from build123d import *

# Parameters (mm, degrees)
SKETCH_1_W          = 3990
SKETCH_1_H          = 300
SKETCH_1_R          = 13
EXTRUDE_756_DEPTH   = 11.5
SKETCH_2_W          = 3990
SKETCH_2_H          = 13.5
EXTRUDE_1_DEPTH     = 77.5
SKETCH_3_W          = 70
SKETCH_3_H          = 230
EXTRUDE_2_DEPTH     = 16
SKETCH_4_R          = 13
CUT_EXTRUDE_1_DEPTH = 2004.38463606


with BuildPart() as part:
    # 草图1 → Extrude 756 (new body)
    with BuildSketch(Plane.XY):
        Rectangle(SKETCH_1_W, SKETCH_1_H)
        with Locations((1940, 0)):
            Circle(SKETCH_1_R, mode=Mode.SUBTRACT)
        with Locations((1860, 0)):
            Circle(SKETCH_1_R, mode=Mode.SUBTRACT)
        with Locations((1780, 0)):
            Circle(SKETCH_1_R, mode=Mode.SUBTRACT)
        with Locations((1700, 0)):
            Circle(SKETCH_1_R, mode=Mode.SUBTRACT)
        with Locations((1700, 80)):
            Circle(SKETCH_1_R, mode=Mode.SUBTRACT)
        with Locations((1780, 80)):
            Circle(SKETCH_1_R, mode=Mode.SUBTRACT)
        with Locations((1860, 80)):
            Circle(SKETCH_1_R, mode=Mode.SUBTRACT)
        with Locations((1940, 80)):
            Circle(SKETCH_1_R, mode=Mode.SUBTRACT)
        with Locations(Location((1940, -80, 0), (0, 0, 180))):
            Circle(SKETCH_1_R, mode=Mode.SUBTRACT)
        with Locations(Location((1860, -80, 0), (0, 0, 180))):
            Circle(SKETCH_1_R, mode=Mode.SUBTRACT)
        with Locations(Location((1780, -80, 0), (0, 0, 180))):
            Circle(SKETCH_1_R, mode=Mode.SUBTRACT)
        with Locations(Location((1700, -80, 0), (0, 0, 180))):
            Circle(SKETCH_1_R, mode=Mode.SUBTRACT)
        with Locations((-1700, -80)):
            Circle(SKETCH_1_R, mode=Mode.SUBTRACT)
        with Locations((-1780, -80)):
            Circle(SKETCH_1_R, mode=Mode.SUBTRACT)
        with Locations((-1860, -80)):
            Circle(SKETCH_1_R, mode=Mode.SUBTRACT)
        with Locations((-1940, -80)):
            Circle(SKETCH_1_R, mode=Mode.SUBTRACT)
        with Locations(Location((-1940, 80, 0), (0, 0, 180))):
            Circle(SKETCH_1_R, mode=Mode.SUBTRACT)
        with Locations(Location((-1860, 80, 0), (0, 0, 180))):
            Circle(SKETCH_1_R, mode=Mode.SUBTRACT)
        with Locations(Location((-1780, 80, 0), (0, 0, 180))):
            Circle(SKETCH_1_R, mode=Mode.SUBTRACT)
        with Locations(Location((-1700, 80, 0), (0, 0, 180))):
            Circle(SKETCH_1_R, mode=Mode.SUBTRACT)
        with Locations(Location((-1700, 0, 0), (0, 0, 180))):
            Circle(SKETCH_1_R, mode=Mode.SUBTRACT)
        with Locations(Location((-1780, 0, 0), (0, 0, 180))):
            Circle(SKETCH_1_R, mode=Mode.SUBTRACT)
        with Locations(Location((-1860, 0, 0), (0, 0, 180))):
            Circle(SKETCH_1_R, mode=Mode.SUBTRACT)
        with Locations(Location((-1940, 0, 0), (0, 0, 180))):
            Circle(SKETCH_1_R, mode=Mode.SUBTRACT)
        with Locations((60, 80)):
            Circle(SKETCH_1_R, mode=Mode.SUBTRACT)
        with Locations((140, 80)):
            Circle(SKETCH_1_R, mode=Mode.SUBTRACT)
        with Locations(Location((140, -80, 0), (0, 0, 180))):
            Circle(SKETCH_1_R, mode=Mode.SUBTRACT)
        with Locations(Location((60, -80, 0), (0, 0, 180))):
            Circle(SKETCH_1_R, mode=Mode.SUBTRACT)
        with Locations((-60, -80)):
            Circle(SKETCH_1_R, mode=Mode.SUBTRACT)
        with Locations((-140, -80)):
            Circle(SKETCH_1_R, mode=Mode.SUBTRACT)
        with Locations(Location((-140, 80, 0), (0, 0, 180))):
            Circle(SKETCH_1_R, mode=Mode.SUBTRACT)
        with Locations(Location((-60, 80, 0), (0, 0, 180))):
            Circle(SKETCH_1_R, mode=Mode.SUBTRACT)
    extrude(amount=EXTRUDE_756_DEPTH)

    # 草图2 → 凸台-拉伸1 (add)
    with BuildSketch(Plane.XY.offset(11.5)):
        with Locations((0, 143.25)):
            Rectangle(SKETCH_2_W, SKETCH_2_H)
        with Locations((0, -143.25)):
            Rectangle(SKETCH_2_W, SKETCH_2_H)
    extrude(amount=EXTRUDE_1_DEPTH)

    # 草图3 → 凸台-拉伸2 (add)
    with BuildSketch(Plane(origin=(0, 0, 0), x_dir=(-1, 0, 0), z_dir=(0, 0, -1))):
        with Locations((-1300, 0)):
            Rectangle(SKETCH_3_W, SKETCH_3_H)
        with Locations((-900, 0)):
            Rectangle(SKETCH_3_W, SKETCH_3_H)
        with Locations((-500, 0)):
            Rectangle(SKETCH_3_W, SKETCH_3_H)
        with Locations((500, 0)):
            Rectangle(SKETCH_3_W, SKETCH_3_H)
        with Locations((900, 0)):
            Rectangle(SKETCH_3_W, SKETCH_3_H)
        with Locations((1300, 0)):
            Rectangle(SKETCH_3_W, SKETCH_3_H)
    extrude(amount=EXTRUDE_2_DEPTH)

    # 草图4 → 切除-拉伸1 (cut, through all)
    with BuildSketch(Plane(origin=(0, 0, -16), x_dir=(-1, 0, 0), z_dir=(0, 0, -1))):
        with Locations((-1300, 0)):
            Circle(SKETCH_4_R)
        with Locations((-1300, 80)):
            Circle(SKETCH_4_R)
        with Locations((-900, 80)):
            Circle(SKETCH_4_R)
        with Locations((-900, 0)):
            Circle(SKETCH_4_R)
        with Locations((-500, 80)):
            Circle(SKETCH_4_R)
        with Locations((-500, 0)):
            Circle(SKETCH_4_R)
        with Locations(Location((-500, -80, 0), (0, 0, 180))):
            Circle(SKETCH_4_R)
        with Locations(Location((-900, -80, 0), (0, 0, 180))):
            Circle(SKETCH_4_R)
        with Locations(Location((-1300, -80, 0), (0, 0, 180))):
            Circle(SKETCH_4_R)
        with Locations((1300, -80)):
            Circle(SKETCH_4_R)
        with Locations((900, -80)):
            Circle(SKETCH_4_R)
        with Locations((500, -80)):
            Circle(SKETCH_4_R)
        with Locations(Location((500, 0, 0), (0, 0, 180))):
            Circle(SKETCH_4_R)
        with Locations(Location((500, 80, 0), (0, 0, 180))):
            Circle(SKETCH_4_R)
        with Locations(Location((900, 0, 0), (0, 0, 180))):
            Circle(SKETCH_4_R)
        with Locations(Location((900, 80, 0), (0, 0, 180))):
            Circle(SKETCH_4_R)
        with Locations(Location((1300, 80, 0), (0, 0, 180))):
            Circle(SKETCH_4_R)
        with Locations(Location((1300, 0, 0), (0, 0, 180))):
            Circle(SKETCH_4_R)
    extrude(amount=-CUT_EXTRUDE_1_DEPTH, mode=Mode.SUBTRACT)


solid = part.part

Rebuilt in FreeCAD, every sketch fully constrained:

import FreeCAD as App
import Part
import Sketcher


def add_polygon(sketch, points):
    """Adds a closed chain of lines whose ends are joined by coincident constraints."""
    first, n = sketch.GeometryCount, len(points)
    for a, b in zip(points, points[1:] + points[:1]):
        sketch.addGeometry(Part.LineSegment(App.Vector(*a, 0), App.Vector(*b, 0)), False)
    for i in range(n):
        sketch.addConstraint(Sketcher.Constraint("Coincident", first + i, 2, first + (i + 1) % n, 1))

doc = App.newDocument("Part")
body = doc.addObject("PartDesign::Body", "Body")

sketch1 = doc.addObject("Sketcher::SketchObject", "Sketch")
body.addObject(sketch1)
sketch1.AttachmentSupport = (doc.XY_Plane, [""])
sketch1.MapMode = "FlatFace"
add_polygon(sketch1, [(-1995, 150), (-1995, -150), (1995, -150), (1995, 150)])
sketch1.addGeometry(Part.Circle(App.Vector(-1940, -80, 0), App.Vector(0, 0, 1), 13), False)
sketch1.addGeometry(Part.Circle(App.Vector(-1860, -80, 0), App.Vector(0, 0, 1), 13), False)
sketch1.addGeometry(Part.Circle(App.Vector(-1780, -80, 0), App.Vector(0, 0, 1), 13), False)
sketch1.addGeometry(Part.Circle(App.Vector(-1700, -80, 0), App.Vector(0, 0, 1), 13), False)
sketch1.addGeometry(Part.Circle(App.Vector(-140, -80, 0), App.Vector(0, 0, 1), 13), False)
sketch1.addGeometry(Part.Circle(App.Vector(-60, -80, 0), App.Vector(0, 0, 1), 13), False)
sketch1.addGeometry(Part.Circle(App.Vector(60, -80, 0), App.Vector(0, 0, 1), 13), False)
sketch1.addGeometry(Part.Circle(App.Vector(140, -80, 0), App.Vector(0, 0, 1), 13), False)
sketch1.addGeometry(Part.Circle(App.Vector(1700, -80, 0), App.Vector(0, 0, 1), 13), False)
sketch1.addGeometry(Part.Circle(App.Vector(1780, -80, 0), App.Vector(0, 0, 1), 13), False)
sketch1.addGeometry(Part.Circle(App.Vector(1860, -80, 0), App.Vector(0, 0, 1), 13), False)
sketch1.addGeometry(Part.Circle(App.Vector(1940, -80, 0), App.Vector(0, 0, 1), 13), False)
sketch1.addGeometry(Part.Circle(App.Vector(-1940, 0, 0), App.Vector(0, 0, 1), 13), False)
sketch1.addGeometry(Part.Circle(App.Vector(-1860, 0, 0), App.Vector(0, 0, 1), 13), False)
sketch1.addGeometry(Part.Circle(App.Vector(-1780, 0, 0), App.Vector(0, 0, 1), 13), False)
sketch1.addGeometry(Part.Circle(App.Vector(-1700, 0, 0), App.Vector(0, 0, 1), 13), False)
sketch1.addGeometry(Part.Circle(App.Vector(-1940, 80, 0), App.Vector(0, 0, 1), 13), False)
sketch1.addGeometry(Part.Circle(App.Vector(-1860, 80, 0), App.Vector(0, 0, 1), 13), False)
sketch1.addGeometry(Part.Circle(App.Vector(-1780, 80, 0), App.Vector(0, 0, 1), 13), False)
sketch1.addGeometry(Part.Circle(App.Vector(-1700, 80, 0), App.Vector(0, 0, 1), 13), False)
sketch1.addGeometry(Part.Circle(App.Vector(-140, 80, 0), App.Vector(0, 0, 1), 13), False)
sketch1.addGeometry(Part.Circle(App.Vector(-60, 80, 0), App.Vector(0, 0, 1), 13), False)
sketch1.addGeometry(Part.Circle(App.Vector(1700, 0, 0), App.Vector(0, 0, 1), 13), False)
sketch1.addGeometry(Part.Circle(App.Vector(1780, 0, 0), App.Vector(0, 0, 1), 13), False)
sketch1.addGeometry(Part.Circle(App.Vector(1860, 0, 0), App.Vector(0, 0, 1), 13), False)
sketch1.addGeometry(Part.Circle(App.Vector(1940, 0, 0), App.Vector(0, 0, 1), 13), False)
sketch1.addGeometry(Part.Circle(App.Vector(60, 80, 0), App.Vector(0, 0, 1), 13), False)
sketch1.addGeometry(Part.Circle(App.Vector(140, 80, 0), App.Vector(0, 0, 1), 13), False)
sketch1.addGeometry(Part.Circle(App.Vector(1700, 80, 0), App.Vector(0, 0, 1), 13), False)
sketch1.addGeometry(Part.Circle(App.Vector(1780, 80, 0), App.Vector(0, 0, 1), 13), False)
sketch1.addGeometry(Part.Circle(App.Vector(1860, 80, 0), App.Vector(0, 0, 1), 13), False)
sketch1.addGeometry(Part.Circle(App.Vector(1940, 80, 0), App.Vector(0, 0, 1), 13), False)
sketch1.addConstraint([
    Sketcher.Constraint("Vertical", 0),
    Sketcher.Constraint("Horizontal", 1),
    Sketcher.Constraint("Vertical", 2),
    Sketcher.Constraint("Horizontal", 3),
    Sketcher.Constraint("Equal", 4, 5),
    Sketcher.Constraint("Equal", 5, 6),
    Sketcher.Constraint("Equal", 6, 7),
    Sketcher.Constraint("Equal", 7, 8),
    Sketcher.Constraint("Equal", 8, 9),
    Sketcher.Constraint("Equal", 9, 10),
    Sketcher.Constraint("Equal", 10, 11),
    Sketcher.Constraint("Equal", 11, 12),
    Sketcher.Constraint("Equal", 12, 13),
    Sketcher.Constraint("Equal", 13, 14),
    Sketcher.Constraint("Equal", 14, 15),
    Sketcher.Constraint("Equal", 15, 16),
    Sketcher.Constraint("Equal", 16, 17),
    Sketcher.Constraint("Equal", 17, 18),
    Sketcher.Constraint("Equal", 18, 19),
    Sketcher.Constraint("Equal", 19, 20),
    Sketcher.Constraint("Equal", 20, 21),
    Sketcher.Constraint("Equal", 21, 22),
    Sketcher.Constraint("Equal", 22, 23),
    Sketcher.Constraint("Equal", 23, 24),
    Sketcher.Constraint("Equal", 24, 25),
    Sketcher.Constraint("Equal", 25, 26),
    Sketcher.Constraint("Equal", 26, 27),
    Sketcher.Constraint("Equal", 27, 28),
    Sketcher.Constraint("Equal", 28, 29),
    Sketcher.Constraint("Equal", 29, 30),
    Sketcher.Constraint("Equal", 30, 31),
    Sketcher.Constraint("Equal", 31, 32),
    Sketcher.Constraint("Equal", 32, 33),
    Sketcher.Constraint("Equal", 33, 34),
    Sketcher.Constraint("Equal", 34, 35),
    Sketcher.Constraint("Symmetric", 15, 3, 20, 3, -1, 1),
    Sketcher.Constraint("Symmetric", 14, 3, 21, 3, -1, 1),
    Sketcher.Constraint("Symmetric", 13, 3, 22, 3, -1, 1),
    Sketcher.Constraint("Symmetric", 12, 3, 23, 3, -1, 1),
    Sketcher.Constraint("Symmetric", 11, 3, 24, 3, -1, 1),
    Sketcher.Constraint("Symmetric", 10, 3, 25, 3, -1, 1),
    Sketcher.Constraint("Symmetric", 19, 3, 26, 3, -1, 1),
    Sketcher.Constraint("Symmetric", 18, 3, 27, 3, -1, 1),
    Sketcher.Constraint("Symmetric", 17, 3, 28, 3, -1, 1),
    Sketcher.Constraint("Symmetric", 16, 3, 29, 3, -1, 1),
    Sketcher.Constraint("Symmetric", 9, 3, 30, 3, -1, 1),
    Sketcher.Constraint("Symmetric", 8, 3, 31, 3, -1, 1),
    Sketcher.Constraint("Symmetric", 7, 3, 32, 3, -1, 1),
    Sketcher.Constraint("Symmetric", 6, 3, 33, 3, -1, 1),
    Sketcher.Constraint("Symmetric", 5, 3, 34, 3, -1, 1),
    Sketcher.Constraint("Symmetric", 4, 3, 35, 3, -1, 1),
    Sketcher.Constraint("Symmetric", 0, 2, 2, 2, -1, 1),
    Sketcher.Constraint("Symmetric", 9, 3, 10, 3, -2),
    Sketcher.Constraint("Symmetric", 8, 3, 11, 3, -2),
    Sketcher.Constraint("Symmetric", 7, 3, 12, 3, -2),
    Sketcher.Constraint("Symmetric", 6, 3, 13, 3, -2),
    Sketcher.Constraint("Symmetric", 5, 3, 14, 3, -2),
    Sketcher.Constraint("Symmetric", 4, 3, 15, 3, -2),
    Sketcher.Constraint("PointOnObject", 16, 3, -1),
    Sketcher.Constraint("PointOnObject", 17, 3, -1),
    Sketcher.Constraint("PointOnObject", 18, 3, -1),
    Sketcher.Constraint("PointOnObject", 19, 3, -1),
    Sketcher.Constraint("Horizontal", 4, 3, 5, 3),
    Sketcher.Constraint("Horizontal", 5, 3, 6, 3),
    Sketcher.Constraint("Horizontal", 6, 3, 7, 3),
    Sketcher.Constraint("Horizontal", 7, 3, 8, 3),
    Sketcher.Constraint("Horizontal", 8, 3, 9, 3),
    Sketcher.Constraint("Vertical", 4, 3, 16, 3),
    Sketcher.Constraint("Vertical", 5, 3, 17, 3),
    Sketcher.Constraint("Vertical", 6, 3, 18, 3),
    Sketcher.Constraint("Vertical", 7, 3, 19, 3),
    Sketcher.Constraint("Diameter", 4, 26.0),
    Sketcher.Constraint("DistanceX", 1, 1, 1, 2, 3990.0),
    Sketcher.Constraint("DistanceY", 0, 2, 0, 1, 300.0),
    Sketcher.Constraint("DistanceX", 4, 3, -1, 1, 1940.0),
    Sketcher.Constraint("DistanceY", 4, 3, -1, 1, 80.0),
    Sketcher.Constraint("DistanceX", 5, 3, -1, 1, 1860.0),
    Sketcher.Constraint("DistanceX", 6, 3, -1, 1, 1780.0),
    Sketcher.Constraint("DistanceX", 7, 3, -1, 1, 1700.0),
    Sketcher.Constraint("DistanceX", 8, 3, -1, 1, 140.0),
    Sketcher.Constraint("DistanceX", 9, 3, -1, 1, 60.0),
])
pad1 = doc.addObject("PartDesign::Pad", "Pad")
body.addObject(pad1)
pad1.Profile = sketch1
pad1.Length = 11.5

sketch2 = doc.addObject("Sketcher::SketchObject", "Sketch001")
body.addObject(sketch2)
sketch2.AttachmentSupport = (doc.XY_Plane, [""])
sketch2.MapMode = "FlatFace"
sketch2.AttachmentOffset = App.Placement(App.Vector(0, 0, 11.5), App.Rotation())
add_polygon(sketch2, [(-1995, 150), (-1995, 136), (1995, 136), (1995, 150)])
add_polygon(sketch2, [(-1995, -136), (-1995, -150), (1995, -150), (1995, -136)])
sketch2.addConstraint([
    Sketcher.Constraint("Vertical", 0),
    Sketcher.Constraint("Horizontal", 1),
    Sketcher.Constraint("Vertical", 2),
    Sketcher.Constraint("Horizontal", 3),
    Sketcher.Constraint("Vertical", 4),
    Sketcher.Constraint("Horizontal", 5),
    Sketcher.Constraint("Vertical", 6),
    Sketcher.Constraint("Horizontal", 7),
    Sketcher.Constraint("Symmetric", 2, 2, 4, 2, -1, 1),
    Sketcher.Constraint("Symmetric", 0, 2, 6, 2, -1, 1),
    Sketcher.Constraint("Vertical", 3, 2, 4, 2),
    Sketcher.Constraint("DistanceX", 1, 1, 1, 2, 3990.0),
    Sketcher.Constraint("DistanceY", 0, 2, 0, 1, 13.5),
    Sketcher.Constraint("DistanceY", -1, 1, 2, 2, 150.0),
])
pad2 = doc.addObject("PartDesign::Pad", "Pad001")
body.addObject(pad2)
pad2.Profile = sketch2
pad2.Length = 77.5

sketch3 = doc.addObject("Sketcher::SketchObject", "Sketch002")
body.addObject(sketch3)
sketch3.AttachmentSupport = (doc.XY_Plane, [""])
sketch3.MapMode = "FlatFace"
add_polygon(sketch3, [(1335, 115), (1335, -115), (1265, -115), (1265, 115)])
add_polygon(sketch3, [(935, 115), (935, -115), (865, -115), (865, 115)])
add_polygon(sketch3, [(535, 115), (535, -115), (465, -115), (465, 115)])
add_polygon(sketch3, [(-465, 115), (-465, -115), (-535, -115), (-535, 115)])
add_polygon(sketch3, [(-865, 115), (-865, -115), (-935, -115), (-935, 115)])
add_polygon(sketch3, [(-1265, 115), (-1265, -115), (-1335, -115), (-1335, 115)])
sketch3.addConstraint([
    Sketcher.Constraint("Vertical", 0),
    Sketcher.Constraint("Horizontal", 1),
    Sketcher.Constraint("Vertical", 2),
    Sketcher.Constraint("Horizontal", 3),
    Sketcher.Constraint("Vertical", 4),
    Sketcher.Constraint("Horizontal", 5),
    Sketcher.Constraint("Vertical", 6),
    Sketcher.Constraint("Horizontal", 7),
    Sketcher.Constraint("Vertical", 8),
    Sketcher.Constraint("Horizontal", 9),
    Sketcher.Constraint("Vertical", 10),
    Sketcher.Constraint("Horizontal", 11),
    Sketcher.Constraint("Vertical", 12),
    Sketcher.Constraint("Horizontal", 13),
    Sketcher.Constraint("Vertical", 14),
    Sketcher.Constraint("Horizontal", 15),
    Sketcher.Constraint("Vertical", 16),
    Sketcher.Constraint("Horizontal", 17),
    Sketcher.Constraint("Vertical", 18),
    Sketcher.Constraint("Horizontal", 19),
    Sketcher.Constraint("Vertical", 20),
    Sketcher.Constraint("Horizontal", 21),
    Sketcher.Constraint("Vertical", 22),
    Sketcher.Constraint("Horizontal", 23),
    Sketcher.Constraint("Symmetric", 10, 2, 12, 2, -1, 1),
    Sketcher.Constraint("Symmetric", 8, 2, 14, 2, -1, 1),
    Sketcher.Constraint("Symmetric", 6, 2, 16, 2, -1, 1),
    Sketcher.Constraint("Symmetric", 4, 2, 18, 2, -1, 1),
    Sketcher.Constraint("Symmetric", 2, 2, 20, 2, -1, 1),
    Sketcher.Constraint("Symmetric", 0, 2, 22, 2, -1, 1),
    Sketcher.Constraint("Horizontal", 1, 2, 4, 2),
    Sketcher.Constraint("Horizontal", 3, 2, 6, 2),
    Sketcher.Constraint("Horizontal", 5, 2, 8, 2),
    Sketcher.Constraint("Horizontal", 7, 2, 10, 2),
    Sketcher.Constraint("Horizontal", 9, 2, 12, 2),
    Sketcher.Constraint("Equal", 3, 5),
    Sketcher.Constraint("Equal", 7, 9),
    Sketcher.Constraint("DistanceX", 1, 2, 1, 1, 70.0),
    Sketcher.Constraint("DistanceY", 0, 2, 0, 1, 230.0),
    Sketcher.Constraint("DistanceX", -1, 1, 0, 2, 1335.0),
    Sketcher.Constraint("DistanceX", -1, 1, 4, 2, 935.0),
    Sketcher.Constraint("DistanceX", -1, 1, 8, 2, 535.0),
])
pad3 = doc.addObject("PartDesign::Pad", "Pad002")
body.addObject(pad3)
pad3.Profile = sketch3
pad3.Length = 16
pad3.Reversed = True

sketch4 = doc.addObject("Sketcher::SketchObject", "Sketch003")
body.addObject(sketch4)
sketch4.AttachmentSupport = (doc.XY_Plane, [""])
sketch4.MapMode = "FlatFace"
sketch4.AttachmentOffset = App.Placement(App.Vector(0, 0, -16), App.Rotation())
sketch4.addGeometry([
    Part.Circle(App.Vector(1300, 0, 0), App.Vector(0, 0, 1), 13),
    Part.Circle(App.Vector(1300, 80, 0), App.Vector(0, 0, 1), 13),
    Part.Circle(App.Vector(900, 80, 0), App.Vector(0, 0, 1), 13),
    Part.Circle(App.Vector(900, 0, 0), App.Vector(0, 0, 1), 13),
    Part.Circle(App.Vector(500, 80, 0), App.Vector(0, 0, 1), 13),
    Part.Circle(App.Vector(500, 0, 0), App.Vector(0, 0, 1), 13),
    Part.Circle(App.Vector(500, -80, 0), App.Vector(0, 0, 1), 13),
    Part.Circle(App.Vector(900, -80, 0), App.Vector(0, 0, 1), 13),
    Part.Circle(App.Vector(1300, -80, 0), App.Vector(0, 0, 1), 13),
    Part.Circle(App.Vector(-1300, -80, 0), App.Vector(0, 0, 1), 13),
    Part.Circle(App.Vector(-900, -80, 0), App.Vector(0, 0, 1), 13),
    Part.Circle(App.Vector(-500, -80, 0), App.Vector(0, 0, 1), 13),
    Part.Circle(App.Vector(-500, 0, 0), App.Vector(0, 0, 1), 13),
    Part.Circle(App.Vector(-500, 80, 0), App.Vector(0, 0, 1), 13),
    Part.Circle(App.Vector(-900, 0, 0), App.Vector(0, 0, 1), 13),
    Part.Circle(App.Vector(-900, 80, 0), App.Vector(0, 0, 1), 13),
    Part.Circle(App.Vector(-1300, 80, 0), App.Vector(0, 0, 1), 13),
    Part.Circle(App.Vector(-1300, 0, 0), App.Vector(0, 0, 1), 13),
], False)
sketch4.addConstraint([
    Sketcher.Constraint("Equal", 0, 1),
    Sketcher.Constraint("Equal", 1, 2),
    Sketcher.Constraint("Equal", 2, 3),
    Sketcher.Constraint("Equal", 3, 4),
    Sketcher.Constraint("Equal", 4, 5),
    Sketcher.Constraint("Equal", 5, 6),
    Sketcher.Constraint("Equal", 6, 7),
    Sketcher.Constraint("Equal", 7, 8),
    Sketcher.Constraint("Equal", 8, 9),
    Sketcher.Constraint("Equal", 9, 10),
    Sketcher.Constraint("Equal", 10, 11),
    Sketcher.Constraint("Equal", 11, 12),
    Sketcher.Constraint("Equal", 12, 13),
    Sketcher.Constraint("Equal", 13, 14),
    Sketcher.Constraint("Equal", 14, 15),
    Sketcher.Constraint("Equal", 15, 16),
    Sketcher.Constraint("Equal", 16, 17),
    Sketcher.Constraint("Symmetric", 1, 3, 9, 3, -1, 1),
    Sketcher.Constraint("Symmetric", 2, 3, 10, 3, -1, 1),
    Sketcher.Constraint("Symmetric", 4, 3, 11, 3, -1, 1),
    Sketcher.Constraint("Symmetric", 5, 3, 12, 3, -1, 1),
    Sketcher.Constraint("Symmetric", 6, 3, 13, 3, -1, 1),
    Sketcher.Constraint("Symmetric", 3, 3, 14, 3, -1, 1),
    Sketcher.Constraint("Symmetric", 7, 3, 15, 3, -1, 1),
    Sketcher.Constraint("Symmetric", 8, 3, 16, 3, -1, 1),
    Sketcher.Constraint("Symmetric", 0, 3, 17, 3, -1, 1),
    Sketcher.Constraint("Symmetric", 8, 3, 9, 3, -2),
    Sketcher.Constraint("Symmetric", 7, 3, 10, 3, -2),
    Sketcher.Constraint("Symmetric", 6, 3, 11, 3, -2),
    Sketcher.Constraint("PointOnObject", 0, 3, -1),
    Sketcher.Constraint("PointOnObject", 3, 3, -1),
    Sketcher.Constraint("PointOnObject", 5, 3, -1),
    Sketcher.Constraint("Horizontal", 1, 3, 2, 3),
    Sketcher.Constraint("Horizontal", 2, 3, 4, 3),
    Sketcher.Constraint("Vertical", 0, 3, 1, 3),
    Sketcher.Constraint("Vertical", 2, 3, 3, 3),
    Sketcher.Constraint("Vertical", 4, 3, 5, 3),
    Sketcher.Constraint("Diameter", 0, 26.0),
    Sketcher.Constraint("DistanceX", -1, 1, 0, 3, 1300.0),
    Sketcher.Constraint("DistanceY", -1, 1, 1, 3, 80.0),
    Sketcher.Constraint("DistanceX", -1, 1, 2, 3, 900.0),
    Sketcher.Constraint("DistanceX", -1, 1, 4, 3, 500.0),
])
pocket1 = doc.addObject("PartDesign::Pocket", "Pocket")
body.addObject(pocket1)
pocket1.Profile = sketch4
pocket1.Type = "ThroughAll"
pocket1.Reversed = True

doc.recompute()
